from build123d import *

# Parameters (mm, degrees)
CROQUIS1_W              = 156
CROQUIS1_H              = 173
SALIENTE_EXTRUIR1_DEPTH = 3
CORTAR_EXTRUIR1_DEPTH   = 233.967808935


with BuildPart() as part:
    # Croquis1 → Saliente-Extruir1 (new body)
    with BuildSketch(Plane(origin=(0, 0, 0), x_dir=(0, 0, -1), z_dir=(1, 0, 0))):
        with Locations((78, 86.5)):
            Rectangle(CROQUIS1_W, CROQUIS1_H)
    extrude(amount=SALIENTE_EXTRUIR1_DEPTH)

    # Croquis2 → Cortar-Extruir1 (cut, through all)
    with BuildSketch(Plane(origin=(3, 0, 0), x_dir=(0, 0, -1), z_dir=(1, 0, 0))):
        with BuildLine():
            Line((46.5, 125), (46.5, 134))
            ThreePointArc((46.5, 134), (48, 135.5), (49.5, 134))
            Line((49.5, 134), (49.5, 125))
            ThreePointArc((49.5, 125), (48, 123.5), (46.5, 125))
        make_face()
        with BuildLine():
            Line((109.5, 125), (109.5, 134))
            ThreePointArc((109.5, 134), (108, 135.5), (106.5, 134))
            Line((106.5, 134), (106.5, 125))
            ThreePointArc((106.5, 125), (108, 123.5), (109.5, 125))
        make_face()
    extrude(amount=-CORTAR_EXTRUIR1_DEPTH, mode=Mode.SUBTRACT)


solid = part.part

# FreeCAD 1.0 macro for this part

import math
import FreeCAD as App
import Part
import Sketcher
from FreeCAD import Vector
Q = App.Units.Quantity

doc = App.newDocument("Part")
body = doc.addObject("PartDesign::Body", "Body")

sketch1 = doc.addObject("Sketcher::SketchObject", "Sketch")
body.addObject(sketch1)
sketch1.AttachmentSupport = (doc.YZ_Plane, [""])
sketch1.MapMode = "FlatFace"
sketch1.addGeometry([
    Part.LineSegment(Vector(173, 0, 0), Vector(0, 0, 0)),
    Part.LineSegment(Vector(0, 0, 0), Vector(0, -156, 0)),
    Part.LineSegment(Vector(0, -156, 0), Vector(173, -156, 0)),
    Part.LineSegment(Vector(173, -156, 0), Vector(173, 0, 0)),
], False)
sketch1.addConstraint([
    Sketcher.Constraint("Coincident", 0, 2, 1, 1),
    Sketcher.Constraint("Coincident", 1, 2, 2, 1),
    Sketcher.Constraint("Coincident", 2, 2, 3, 1),
    Sketcher.Constraint("Coincident", 3, 2, 0, 1),
    Sketcher.Constraint("Horizontal", 0),
    Sketcher.Constraint("Vertical", 1),
    Sketcher.Constraint("Horizontal", 2),
    Sketcher.Constraint("Vertical", 3),
    Sketcher.Constraint("Coincident", 0, 2, -1, 1),
    Sketcher.Constraint("DistanceX", 0, 2, 0, 1, Q("173 mm")),
    Sketcher.Constraint("DistanceY", 1, 2, 1, 1, Q("156 mm")),
])
pad1 = doc.addObject("PartDesign::Pad", "Pad")
body.addObject(pad1)
pad1.Profile = sketch1
pad1.Length = 3

sketch2 = doc.addObject("Sketcher::SketchObject", "Sketch001")
body.addObject(sketch2)
sketch2.AttachmentSupport = (doc.YZ_Plane, [""])
sketch2.MapMode = "FlatFace"
sketch2.AttachmentOffset = App.Placement(Vector(0, 0, 3), App.Rotation())
sketch2.addGeometry([
    Part.LineSegment(Vector(134, -46.5, 0), Vector(125, -46.5, 0)),
    Part.ArcOfCircle(Part.Circle(Vector(125, -48, 0), Vector(0, 0, 1), 1.5), math.radians(90), math.radians(270)),
    Part.LineSegment(Vector(125, -49.5, 0), Vector(134, -49.5, 0)),
    Part.ArcOfCircle(Part.Circle(Vector(134, -48, 0), Vector(0, 0, 1), 1.5), math.radians(-90), math.radians(90)),
    Part.LineSegment(Vector(125, -109.5, 0), Vector(134, -109.5, 0)),
    Part.ArcOfCircle(Part.Circle(Vector(134, -108, 0), Vector(0, 0, 1), 1.5), math.radians(-90), math.radians(90)),
    Part.LineSegment(Vector(134, -106.5, 0), Vector(125, -106.5, 0)),
    Part.ArcOfCircle(Part.Circle(Vector(125, -108, 0), Vector(0, 0, 1), 1.5), math.radians(90), math.radians(270)),
], False)
sketch2.addConstraint([
    Sketcher.Constraint("Tangent", 0, 2, 1, 1),
    Sketcher.Constraint("Tangent", 1, 2, 2, 1),
    Sketcher.Constraint("Tangent", 2, 2, 3, 1),
    Sketcher.Constraint("Tangent", 3, 2, 0, 1),
    Sketcher.Constraint("Tangent", 4, 2, 5, 1),
    Sketcher.Constraint("Tangent", 5, 2, 6, 1),
    Sketcher.Constraint("Tangent", 6, 2, 7, 1),
    Sketcher.Constraint("Tangent", 7, 2, 4, 1),
    Sketcher.Constraint("Horizontal", 0),
    Sketcher.Constraint("Horizontal", 2),
    Sketcher.Constraint("Horizontal", 4),
    Sketcher.Constraint("Horizontal", 6),
    Sketcher.Constraint("Equal", 3, 5),
    Sketcher.Constraint("Vertical", 3, 3, 5, 3),
    Sketcher.Constraint("Vertical", 1, 3, 7, 3),
    Sketcher.Constraint("Radius", 1, Q("1.5 mm")),
    Sketcher.Constraint("DistanceX", 0, 2, 0, 1, Q("9 mm")),
    Sketcher.Constraint("DistanceX", -1, 1, 1, 3, Q("125 mm")),
    Sketcher.Constraint("DistanceY", 1, 3, -1, 1, Q("48 mm")),
    Sketcher.Constraint("DistanceY", 5, 3, -1, 1, Q("108 mm")),
])
pocket1 = doc.addObject("PartDesign::Pocket", "Pocket")
body.addObject(pocket1)
pocket1.Profile = sketch2
pocket1.Type = "ThroughAll"

doc.recompute()
